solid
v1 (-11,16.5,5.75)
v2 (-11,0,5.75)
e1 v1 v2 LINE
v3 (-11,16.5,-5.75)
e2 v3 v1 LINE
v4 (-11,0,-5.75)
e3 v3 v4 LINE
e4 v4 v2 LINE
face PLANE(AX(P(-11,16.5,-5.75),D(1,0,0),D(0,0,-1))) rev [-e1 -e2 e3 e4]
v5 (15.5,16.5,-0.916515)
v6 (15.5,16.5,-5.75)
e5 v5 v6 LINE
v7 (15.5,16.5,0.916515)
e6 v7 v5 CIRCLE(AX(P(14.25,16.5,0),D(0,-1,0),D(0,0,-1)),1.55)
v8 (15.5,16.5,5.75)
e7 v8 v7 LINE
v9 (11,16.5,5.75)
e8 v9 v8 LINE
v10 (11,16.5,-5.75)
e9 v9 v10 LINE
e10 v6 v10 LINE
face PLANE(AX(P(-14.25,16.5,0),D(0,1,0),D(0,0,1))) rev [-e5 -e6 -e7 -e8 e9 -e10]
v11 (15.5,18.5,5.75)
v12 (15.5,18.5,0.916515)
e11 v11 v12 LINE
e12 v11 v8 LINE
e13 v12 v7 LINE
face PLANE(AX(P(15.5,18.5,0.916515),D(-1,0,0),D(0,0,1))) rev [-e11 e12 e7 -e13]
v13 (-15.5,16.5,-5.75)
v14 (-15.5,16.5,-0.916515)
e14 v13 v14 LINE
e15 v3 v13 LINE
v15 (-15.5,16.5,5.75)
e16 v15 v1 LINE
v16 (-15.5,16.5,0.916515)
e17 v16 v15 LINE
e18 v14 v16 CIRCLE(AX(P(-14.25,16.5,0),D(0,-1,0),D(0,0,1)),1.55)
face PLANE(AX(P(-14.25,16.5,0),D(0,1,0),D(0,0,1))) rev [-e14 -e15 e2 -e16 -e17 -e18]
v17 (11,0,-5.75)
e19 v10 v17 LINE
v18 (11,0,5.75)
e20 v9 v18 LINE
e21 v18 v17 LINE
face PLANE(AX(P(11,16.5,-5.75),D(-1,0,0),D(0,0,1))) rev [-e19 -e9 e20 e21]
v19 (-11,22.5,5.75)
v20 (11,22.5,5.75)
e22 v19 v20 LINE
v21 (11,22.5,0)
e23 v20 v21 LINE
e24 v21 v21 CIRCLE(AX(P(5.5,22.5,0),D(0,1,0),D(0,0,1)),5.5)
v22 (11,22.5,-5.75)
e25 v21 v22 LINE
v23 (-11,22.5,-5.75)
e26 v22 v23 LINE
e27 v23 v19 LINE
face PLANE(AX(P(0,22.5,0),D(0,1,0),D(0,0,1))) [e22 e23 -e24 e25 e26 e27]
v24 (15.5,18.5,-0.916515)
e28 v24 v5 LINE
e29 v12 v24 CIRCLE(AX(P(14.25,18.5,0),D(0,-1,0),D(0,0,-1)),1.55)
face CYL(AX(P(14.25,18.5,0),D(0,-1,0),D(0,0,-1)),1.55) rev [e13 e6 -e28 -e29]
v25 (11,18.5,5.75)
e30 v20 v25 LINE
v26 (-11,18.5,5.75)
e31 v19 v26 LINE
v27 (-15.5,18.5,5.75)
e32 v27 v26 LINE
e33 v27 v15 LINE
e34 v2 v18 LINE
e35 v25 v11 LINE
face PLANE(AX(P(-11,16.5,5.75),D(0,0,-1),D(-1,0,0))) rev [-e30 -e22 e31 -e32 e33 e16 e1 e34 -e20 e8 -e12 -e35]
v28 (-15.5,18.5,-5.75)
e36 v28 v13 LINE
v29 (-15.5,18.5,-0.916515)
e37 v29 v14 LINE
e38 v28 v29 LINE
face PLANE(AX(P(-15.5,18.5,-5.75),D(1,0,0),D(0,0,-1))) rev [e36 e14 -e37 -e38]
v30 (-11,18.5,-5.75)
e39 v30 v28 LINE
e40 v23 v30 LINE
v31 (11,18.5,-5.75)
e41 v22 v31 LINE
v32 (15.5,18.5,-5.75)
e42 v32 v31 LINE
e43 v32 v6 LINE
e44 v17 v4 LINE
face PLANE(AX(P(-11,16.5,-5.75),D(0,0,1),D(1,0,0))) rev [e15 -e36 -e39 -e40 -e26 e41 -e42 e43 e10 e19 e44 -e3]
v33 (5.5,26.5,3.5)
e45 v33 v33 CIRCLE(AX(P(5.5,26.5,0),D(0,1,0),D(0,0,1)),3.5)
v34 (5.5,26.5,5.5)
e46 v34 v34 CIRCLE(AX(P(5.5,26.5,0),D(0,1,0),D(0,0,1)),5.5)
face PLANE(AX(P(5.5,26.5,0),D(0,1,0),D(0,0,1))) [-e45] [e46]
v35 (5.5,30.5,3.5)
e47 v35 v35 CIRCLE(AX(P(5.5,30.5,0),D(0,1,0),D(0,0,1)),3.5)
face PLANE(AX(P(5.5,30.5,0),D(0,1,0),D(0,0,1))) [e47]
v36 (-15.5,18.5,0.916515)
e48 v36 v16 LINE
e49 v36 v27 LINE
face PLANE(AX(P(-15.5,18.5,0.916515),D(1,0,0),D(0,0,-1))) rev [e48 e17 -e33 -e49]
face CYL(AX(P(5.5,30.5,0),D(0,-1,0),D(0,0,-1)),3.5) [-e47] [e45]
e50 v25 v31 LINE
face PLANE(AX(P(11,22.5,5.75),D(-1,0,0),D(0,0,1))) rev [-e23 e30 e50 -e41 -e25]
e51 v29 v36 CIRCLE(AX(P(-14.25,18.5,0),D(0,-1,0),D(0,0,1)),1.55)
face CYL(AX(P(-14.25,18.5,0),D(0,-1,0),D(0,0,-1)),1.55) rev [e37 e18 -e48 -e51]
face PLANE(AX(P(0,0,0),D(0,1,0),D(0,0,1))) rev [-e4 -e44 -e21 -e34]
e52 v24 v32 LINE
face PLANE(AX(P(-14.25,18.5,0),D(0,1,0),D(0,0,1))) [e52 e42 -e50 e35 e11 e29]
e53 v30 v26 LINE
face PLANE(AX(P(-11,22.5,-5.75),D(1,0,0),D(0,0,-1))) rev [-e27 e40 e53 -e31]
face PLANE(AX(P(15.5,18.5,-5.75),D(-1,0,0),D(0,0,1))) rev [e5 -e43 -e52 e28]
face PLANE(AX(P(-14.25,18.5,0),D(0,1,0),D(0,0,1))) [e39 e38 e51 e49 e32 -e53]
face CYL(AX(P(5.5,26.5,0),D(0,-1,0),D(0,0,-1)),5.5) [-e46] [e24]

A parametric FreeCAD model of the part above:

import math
import FreeCAD as App
import Part
import Sketcher

V = App.Vector
Q = App.Units.Quantity


def add_polygon(sketch, points):
    """Adds a closed chain of lines whose ends are joined by coincident constraints."""
    first, n = sketch.GeometryCount, len(points)
    for a, b in zip(points, points[1:] + points[:1]):
        sketch.addGeometry(Part.LineSegment(App.Vector(*a, 0), App.Vector(*b, 0)), False)
    for i in range(n):
        sketch.addConstraint(Sketcher.Constraint("Coincident", first + i, 2, first + (i + 1) % n, 1))

doc = App.newDocument("Part")
params = doc.addObject("Spreadsheet::Sheet", "Params")
for row, (alias, value) in enumerate([
    ("sketch1_width", "22 mm"),
    ("sketch1_height", "11.5 mm"),
    ("pad1_length", "16.5 mm"),
    ("sketch2_width", "31 mm"),
    ("sketch2_radius", "1.55 mm"),
    ("pad2_length", "2 mm"),
    ("sketch3_width", "22 mm"),
    ("sketch3_height", "11.5 mm"),
    ("pad3_length", "4 mm"),
    ("sketch4_diameter", "11 mm"),
    ("pad4_length", "4 mm"),
    ("sketch5_diameter", "7 mm"),
    ("pad5_length", "4 mm"),
], start=1):
    params.set(f"A{row}", alias)
    params.set(f"B{row}", "=" + value)
    params.setAlias(f"B{row}", alias)

body = doc.addObject("PartDesign::Body", "Body")

# Sketch on XZ plane
sketch1 = body.newObject("Sketcher::SketchObject", "Sketch")
sketch1.AttachmentSupport = (doc.getObject("XZ_Plane"), [""])
sketch1.MapMode = "FlatFace"
add_polygon(sketch1, [(-11, -6), (-11, 6), (11, 6), (11, -6)])  # lines 0-3
sketch1.addConstraint(Sketcher.Constraint("Vertical", 0))
sketch1.addConstraint(Sketcher.Constraint("Horizontal", 1))
sketch1.addConstraint(Sketcher.Constraint("Vertical", 2))
sketch1.addConstraint(Sketcher.Constraint("Horizontal", 3))
sketch1.addConstraint(Sketcher.Constraint("Symmetric", 0, 2, 2, 2, -1, 1))
sketch1.addConstraint(Sketcher.Constraint("DistanceX", 1, 1, 1, 2, Q("22 mm")))
sketch1.addConstraint(Sketcher.Constraint("DistanceY", 0, 1, 0, 2, Q("11.5 mm")))
sketch1.setExpression("Constraints[9]", "Params.sketch1_width")
sketch1.setExpression("Constraints[10]", "Params.sketch1_height")
pad1 = body.newObject("PartDesign::Pad", "Pad")
pad1.Profile = sketch1
pad1.setExpression("Length", "Params.pad1_length")
pad1.Reversed = True

# Sketch on XZ plane
sketch2 = body.newObject("Sketcher::SketchObject", "Sketch001")
sketch2.AttachmentSupport = (doc.getObject("XZ_Plane"), [""])
sketch2.MapMode = "FlatFace"
sketch2.AttachmentOffset = App.Placement(V(0, 0, -16.5), App.Rotation())
sketch2.addGeometry(Part.LineSegment(V(15.5, -5.8, 0), V(-15.5, -5.8, 0)), False)
sketch2.addGeometry(Part.LineSegment(V(-15.5, -5.8, 0), V(-15.5, -0.9, 0)), False)
sketch2.addGeometry(Part.ArcOfCircle(Part.Circle(V(-14.2, 0, 0), V(0, 0, 1), 1.6), math.radians(-144), math.radians(144)), False)
sketch2.addGeometry(Part.LineSegment(V(-15.5, 0.9, 0), V(-15.5, 5.8, 0)), False)
sketch2.addGeometry(Part.LineSegment(V(-15.5, 5.8, 0), V(15.5, 5.8, 0)), False)
sketch2.addGeometry(Part.LineSegment(V(15.5, 5.8, 0), V(15.5, 0.9, 0)), False)
sketch2.addGeometry(Part.ArcOfCircle(Part.Circle(V(14.2, 0, 0), V(0, 0, 1), 1.6), math.radians(36), math.radians(324)), False)
sketch2.addGeometry(Part.LineSegment(V(15.5, -0.9, 0), V(15.5, -5.8, 0)), False)
sketch2.addConstraint(Sketcher.Constraint("Coincident", 0, 2, 1, 1))
sketch2.addConstraint(Sketcher.Constraint("Coincident", 1, 2, 2, 1))
sketch2.addConstraint(Sketcher.Constraint("Coincident", 2, 2, 3, 1))
sketch2.addConstraint(Sketcher.Constraint("Coincident", 3, 2, 4, 1))
sketch2.addConstraint(Sketcher.Constraint("Coincident", 4, 2, 5, 1))
sketch2.addConstraint(Sketcher.Constraint("Coincident", 5, 2, 6, 1))
sketch2.addConstraint(Sketcher.Constraint("Coincident", 6, 2, 7, 1))
sketch2.addConstraint(Sketcher.Constraint("Coincident", 7, 2, 0, 1))
sketch2.addConstraint(Sketcher.Constraint("Horizontal", 0))
sketch2.addConstraint(Sketcher.Constraint("Vertical", 1))
sketch2.addConstraint(Sketcher.Constraint("Vertical", 3))
sketch2.addConstraint(Sketcher.Constraint("Horizontal", 4))
sketch2.addConstraint(Sketcher.Constraint("Vertical", 5))
sketch2.addConstraint(Sketcher.Constraint("Vertical", 7))
sketch2.addConstraint(Sketcher.Constraint("Equal", 2, 6))
sketch2.addConstraint(Sketcher.Constraint("Symmetric", 2, 3, 6, 3, -1, 1))
sketch2.addConstraint(Sketcher.Constraint("Symmetric", 0, 2, 4, 2, -1, 1))
sketch2.addConstraint(Sketcher.Constraint("Symmetric", 2, 2, 5, 2, -2))
sketch2.addConstraint(Sketcher.Constraint("Horizontal", 1, 2, 6, 2))
sketch2.addConstraint(Sketcher.Constraint("DistanceX", 0, 2, 0, 1, Q("31 mm")))
sketch2.addConstraint(Sketcher.Constraint("Radius", 2, Q("1.55 mm")))
sketch2.addConstraint(Sketcher.Constraint("DistanceX", 2, 3, 6, 3, Q("28.5 mm")))
sketch2.addConstraint(Sketcher.Constraint("DistanceY", 0, 2, 3, 2, Q("11.5 mm")))
sketch2.setExpression("Constraints[19]", "Params.sketch2_width")
sketch2.setExpression("Constraints[20]", "Params.sketch2_radius")
pad2 = body.newObject("PartDesign::Pad", "Pad001")
pad2.Profile = sketch2
pad2.setExpression("Length", "Params.pad2_length")
pad2.Reversed = True

# Sketch on XZ plane
sketch3 = body.newObject("Sketcher::SketchObject", "Sketch002")
sketch3.AttachmentSupport = (doc.getObject("XZ_Plane"), [""])
sketch3.MapMode = "FlatFace"
sketch3.AttachmentOffset = App.Placement(V(0, 0, -18.5), App.Rotation())
add_polygon(sketch3, [(-11, -6), (-11, 6), (11, 6), (11, -6)])  # lines 0-3
sketch3.addConstraint(Sketcher.Constraint("Vertical", 0))
sketch3.addConstraint(Sketcher.Constraint("Horizontal", 1))
sketch3.addConstraint(Sketcher.Constraint("Vertical", 2))
sketch3.addConstraint(Sketcher.Constraint("Horizontal", 3))
sketch3.addConstraint(Sketcher.Constraint("Symmetric", 0, 2, 2, 2, -1, 1))
sketch3.addConstraint(Sketcher.Constraint("DistanceX", 1, 1, 1, 2, Q("22 mm")))
sketch3.addConstraint(Sketcher.Constraint("DistanceY", 0, 1, 0, 2, Q("11.5 mm")))
sketch3.setExpression("Constraints[9]", "Params.sketch3_width")
sketch3.setExpression("Constraints[10]", "Params.sketch3_height")
pad3 = body.newObject("PartDesign::Pad", "Pad002")
pad3.Profile = sketch3
pad3.setExpression("Length", "Params.pad3_length")
pad3.Reversed = True

# Sketch on XZ plane
sketch4 = body.newObject("Sketcher::SketchObject", "Sketch003")
sketch4.AttachmentSupport = (doc.getObject("XZ_Plane"), [""])
sketch4.MapMode = "FlatFace"
sketch4.AttachmentOffset = App.Placement(V(0, 0, -22.5), App.Rotation())
sketch4.addGeometry(Part.Circle(V(6, 0, 0), V(0, 0, 1), 6), False)
sketch4.addConstraint(Sketcher.Constraint("PointOnObject", 0, 3, -1))
sketch4.addConstraint(Sketcher.Constraint("Diameter", 0, Q("11 mm")))
sketch4.addConstraint(Sketcher.Constraint("DistanceX", -1, 1, 0, 3, Q("5.5 mm")))
sketch4.setExpression("Constraints[1]", "Params.sketch4_diameter")
pad4 = body.newObject("PartDesign::Pad", "Pad003")
pad4.Profile = sketch4
pad4.setExpression("Length", "Params.pad4_length")
pad4.Reversed = True

# Sketch on XZ plane
sketch5 = body.newObject("Sketcher::SketchObject", "Sketch004")
sketch5.AttachmentSupport = (doc.getObject("XZ_Plane"), [""])
sketch5.MapMode = "FlatFace"
sketch5.AttachmentOffset = App.Placement(V(0, 0, -26.5), App.Rotation())
sketch5.addGeometry(Part.Circle(V(5.5, 0, 0), V(0, 0, 1), 3.5), False)
sketch5.addConstraint(Sketcher.Constraint("PointOnObject", 0, 3, -1))
sketch5.addConstraint(Sketcher.Constraint("Diameter", 0, Q("7 mm")))
sketch5.addConstraint(Sketcher.Constraint("DistanceX", -1, 1, 0, 3, Q("5.5 mm")))
sketch5.setExpression("Constraints[1]", "Params.sketch5_diameter")
pad5 = body.newObject("PartDesign::Pad", "Pad004")
pad5.Profile = sketch5
pad5.setExpression("Length", "Params.pad5_length")
pad5.Reversed = True

doc.recompute()
